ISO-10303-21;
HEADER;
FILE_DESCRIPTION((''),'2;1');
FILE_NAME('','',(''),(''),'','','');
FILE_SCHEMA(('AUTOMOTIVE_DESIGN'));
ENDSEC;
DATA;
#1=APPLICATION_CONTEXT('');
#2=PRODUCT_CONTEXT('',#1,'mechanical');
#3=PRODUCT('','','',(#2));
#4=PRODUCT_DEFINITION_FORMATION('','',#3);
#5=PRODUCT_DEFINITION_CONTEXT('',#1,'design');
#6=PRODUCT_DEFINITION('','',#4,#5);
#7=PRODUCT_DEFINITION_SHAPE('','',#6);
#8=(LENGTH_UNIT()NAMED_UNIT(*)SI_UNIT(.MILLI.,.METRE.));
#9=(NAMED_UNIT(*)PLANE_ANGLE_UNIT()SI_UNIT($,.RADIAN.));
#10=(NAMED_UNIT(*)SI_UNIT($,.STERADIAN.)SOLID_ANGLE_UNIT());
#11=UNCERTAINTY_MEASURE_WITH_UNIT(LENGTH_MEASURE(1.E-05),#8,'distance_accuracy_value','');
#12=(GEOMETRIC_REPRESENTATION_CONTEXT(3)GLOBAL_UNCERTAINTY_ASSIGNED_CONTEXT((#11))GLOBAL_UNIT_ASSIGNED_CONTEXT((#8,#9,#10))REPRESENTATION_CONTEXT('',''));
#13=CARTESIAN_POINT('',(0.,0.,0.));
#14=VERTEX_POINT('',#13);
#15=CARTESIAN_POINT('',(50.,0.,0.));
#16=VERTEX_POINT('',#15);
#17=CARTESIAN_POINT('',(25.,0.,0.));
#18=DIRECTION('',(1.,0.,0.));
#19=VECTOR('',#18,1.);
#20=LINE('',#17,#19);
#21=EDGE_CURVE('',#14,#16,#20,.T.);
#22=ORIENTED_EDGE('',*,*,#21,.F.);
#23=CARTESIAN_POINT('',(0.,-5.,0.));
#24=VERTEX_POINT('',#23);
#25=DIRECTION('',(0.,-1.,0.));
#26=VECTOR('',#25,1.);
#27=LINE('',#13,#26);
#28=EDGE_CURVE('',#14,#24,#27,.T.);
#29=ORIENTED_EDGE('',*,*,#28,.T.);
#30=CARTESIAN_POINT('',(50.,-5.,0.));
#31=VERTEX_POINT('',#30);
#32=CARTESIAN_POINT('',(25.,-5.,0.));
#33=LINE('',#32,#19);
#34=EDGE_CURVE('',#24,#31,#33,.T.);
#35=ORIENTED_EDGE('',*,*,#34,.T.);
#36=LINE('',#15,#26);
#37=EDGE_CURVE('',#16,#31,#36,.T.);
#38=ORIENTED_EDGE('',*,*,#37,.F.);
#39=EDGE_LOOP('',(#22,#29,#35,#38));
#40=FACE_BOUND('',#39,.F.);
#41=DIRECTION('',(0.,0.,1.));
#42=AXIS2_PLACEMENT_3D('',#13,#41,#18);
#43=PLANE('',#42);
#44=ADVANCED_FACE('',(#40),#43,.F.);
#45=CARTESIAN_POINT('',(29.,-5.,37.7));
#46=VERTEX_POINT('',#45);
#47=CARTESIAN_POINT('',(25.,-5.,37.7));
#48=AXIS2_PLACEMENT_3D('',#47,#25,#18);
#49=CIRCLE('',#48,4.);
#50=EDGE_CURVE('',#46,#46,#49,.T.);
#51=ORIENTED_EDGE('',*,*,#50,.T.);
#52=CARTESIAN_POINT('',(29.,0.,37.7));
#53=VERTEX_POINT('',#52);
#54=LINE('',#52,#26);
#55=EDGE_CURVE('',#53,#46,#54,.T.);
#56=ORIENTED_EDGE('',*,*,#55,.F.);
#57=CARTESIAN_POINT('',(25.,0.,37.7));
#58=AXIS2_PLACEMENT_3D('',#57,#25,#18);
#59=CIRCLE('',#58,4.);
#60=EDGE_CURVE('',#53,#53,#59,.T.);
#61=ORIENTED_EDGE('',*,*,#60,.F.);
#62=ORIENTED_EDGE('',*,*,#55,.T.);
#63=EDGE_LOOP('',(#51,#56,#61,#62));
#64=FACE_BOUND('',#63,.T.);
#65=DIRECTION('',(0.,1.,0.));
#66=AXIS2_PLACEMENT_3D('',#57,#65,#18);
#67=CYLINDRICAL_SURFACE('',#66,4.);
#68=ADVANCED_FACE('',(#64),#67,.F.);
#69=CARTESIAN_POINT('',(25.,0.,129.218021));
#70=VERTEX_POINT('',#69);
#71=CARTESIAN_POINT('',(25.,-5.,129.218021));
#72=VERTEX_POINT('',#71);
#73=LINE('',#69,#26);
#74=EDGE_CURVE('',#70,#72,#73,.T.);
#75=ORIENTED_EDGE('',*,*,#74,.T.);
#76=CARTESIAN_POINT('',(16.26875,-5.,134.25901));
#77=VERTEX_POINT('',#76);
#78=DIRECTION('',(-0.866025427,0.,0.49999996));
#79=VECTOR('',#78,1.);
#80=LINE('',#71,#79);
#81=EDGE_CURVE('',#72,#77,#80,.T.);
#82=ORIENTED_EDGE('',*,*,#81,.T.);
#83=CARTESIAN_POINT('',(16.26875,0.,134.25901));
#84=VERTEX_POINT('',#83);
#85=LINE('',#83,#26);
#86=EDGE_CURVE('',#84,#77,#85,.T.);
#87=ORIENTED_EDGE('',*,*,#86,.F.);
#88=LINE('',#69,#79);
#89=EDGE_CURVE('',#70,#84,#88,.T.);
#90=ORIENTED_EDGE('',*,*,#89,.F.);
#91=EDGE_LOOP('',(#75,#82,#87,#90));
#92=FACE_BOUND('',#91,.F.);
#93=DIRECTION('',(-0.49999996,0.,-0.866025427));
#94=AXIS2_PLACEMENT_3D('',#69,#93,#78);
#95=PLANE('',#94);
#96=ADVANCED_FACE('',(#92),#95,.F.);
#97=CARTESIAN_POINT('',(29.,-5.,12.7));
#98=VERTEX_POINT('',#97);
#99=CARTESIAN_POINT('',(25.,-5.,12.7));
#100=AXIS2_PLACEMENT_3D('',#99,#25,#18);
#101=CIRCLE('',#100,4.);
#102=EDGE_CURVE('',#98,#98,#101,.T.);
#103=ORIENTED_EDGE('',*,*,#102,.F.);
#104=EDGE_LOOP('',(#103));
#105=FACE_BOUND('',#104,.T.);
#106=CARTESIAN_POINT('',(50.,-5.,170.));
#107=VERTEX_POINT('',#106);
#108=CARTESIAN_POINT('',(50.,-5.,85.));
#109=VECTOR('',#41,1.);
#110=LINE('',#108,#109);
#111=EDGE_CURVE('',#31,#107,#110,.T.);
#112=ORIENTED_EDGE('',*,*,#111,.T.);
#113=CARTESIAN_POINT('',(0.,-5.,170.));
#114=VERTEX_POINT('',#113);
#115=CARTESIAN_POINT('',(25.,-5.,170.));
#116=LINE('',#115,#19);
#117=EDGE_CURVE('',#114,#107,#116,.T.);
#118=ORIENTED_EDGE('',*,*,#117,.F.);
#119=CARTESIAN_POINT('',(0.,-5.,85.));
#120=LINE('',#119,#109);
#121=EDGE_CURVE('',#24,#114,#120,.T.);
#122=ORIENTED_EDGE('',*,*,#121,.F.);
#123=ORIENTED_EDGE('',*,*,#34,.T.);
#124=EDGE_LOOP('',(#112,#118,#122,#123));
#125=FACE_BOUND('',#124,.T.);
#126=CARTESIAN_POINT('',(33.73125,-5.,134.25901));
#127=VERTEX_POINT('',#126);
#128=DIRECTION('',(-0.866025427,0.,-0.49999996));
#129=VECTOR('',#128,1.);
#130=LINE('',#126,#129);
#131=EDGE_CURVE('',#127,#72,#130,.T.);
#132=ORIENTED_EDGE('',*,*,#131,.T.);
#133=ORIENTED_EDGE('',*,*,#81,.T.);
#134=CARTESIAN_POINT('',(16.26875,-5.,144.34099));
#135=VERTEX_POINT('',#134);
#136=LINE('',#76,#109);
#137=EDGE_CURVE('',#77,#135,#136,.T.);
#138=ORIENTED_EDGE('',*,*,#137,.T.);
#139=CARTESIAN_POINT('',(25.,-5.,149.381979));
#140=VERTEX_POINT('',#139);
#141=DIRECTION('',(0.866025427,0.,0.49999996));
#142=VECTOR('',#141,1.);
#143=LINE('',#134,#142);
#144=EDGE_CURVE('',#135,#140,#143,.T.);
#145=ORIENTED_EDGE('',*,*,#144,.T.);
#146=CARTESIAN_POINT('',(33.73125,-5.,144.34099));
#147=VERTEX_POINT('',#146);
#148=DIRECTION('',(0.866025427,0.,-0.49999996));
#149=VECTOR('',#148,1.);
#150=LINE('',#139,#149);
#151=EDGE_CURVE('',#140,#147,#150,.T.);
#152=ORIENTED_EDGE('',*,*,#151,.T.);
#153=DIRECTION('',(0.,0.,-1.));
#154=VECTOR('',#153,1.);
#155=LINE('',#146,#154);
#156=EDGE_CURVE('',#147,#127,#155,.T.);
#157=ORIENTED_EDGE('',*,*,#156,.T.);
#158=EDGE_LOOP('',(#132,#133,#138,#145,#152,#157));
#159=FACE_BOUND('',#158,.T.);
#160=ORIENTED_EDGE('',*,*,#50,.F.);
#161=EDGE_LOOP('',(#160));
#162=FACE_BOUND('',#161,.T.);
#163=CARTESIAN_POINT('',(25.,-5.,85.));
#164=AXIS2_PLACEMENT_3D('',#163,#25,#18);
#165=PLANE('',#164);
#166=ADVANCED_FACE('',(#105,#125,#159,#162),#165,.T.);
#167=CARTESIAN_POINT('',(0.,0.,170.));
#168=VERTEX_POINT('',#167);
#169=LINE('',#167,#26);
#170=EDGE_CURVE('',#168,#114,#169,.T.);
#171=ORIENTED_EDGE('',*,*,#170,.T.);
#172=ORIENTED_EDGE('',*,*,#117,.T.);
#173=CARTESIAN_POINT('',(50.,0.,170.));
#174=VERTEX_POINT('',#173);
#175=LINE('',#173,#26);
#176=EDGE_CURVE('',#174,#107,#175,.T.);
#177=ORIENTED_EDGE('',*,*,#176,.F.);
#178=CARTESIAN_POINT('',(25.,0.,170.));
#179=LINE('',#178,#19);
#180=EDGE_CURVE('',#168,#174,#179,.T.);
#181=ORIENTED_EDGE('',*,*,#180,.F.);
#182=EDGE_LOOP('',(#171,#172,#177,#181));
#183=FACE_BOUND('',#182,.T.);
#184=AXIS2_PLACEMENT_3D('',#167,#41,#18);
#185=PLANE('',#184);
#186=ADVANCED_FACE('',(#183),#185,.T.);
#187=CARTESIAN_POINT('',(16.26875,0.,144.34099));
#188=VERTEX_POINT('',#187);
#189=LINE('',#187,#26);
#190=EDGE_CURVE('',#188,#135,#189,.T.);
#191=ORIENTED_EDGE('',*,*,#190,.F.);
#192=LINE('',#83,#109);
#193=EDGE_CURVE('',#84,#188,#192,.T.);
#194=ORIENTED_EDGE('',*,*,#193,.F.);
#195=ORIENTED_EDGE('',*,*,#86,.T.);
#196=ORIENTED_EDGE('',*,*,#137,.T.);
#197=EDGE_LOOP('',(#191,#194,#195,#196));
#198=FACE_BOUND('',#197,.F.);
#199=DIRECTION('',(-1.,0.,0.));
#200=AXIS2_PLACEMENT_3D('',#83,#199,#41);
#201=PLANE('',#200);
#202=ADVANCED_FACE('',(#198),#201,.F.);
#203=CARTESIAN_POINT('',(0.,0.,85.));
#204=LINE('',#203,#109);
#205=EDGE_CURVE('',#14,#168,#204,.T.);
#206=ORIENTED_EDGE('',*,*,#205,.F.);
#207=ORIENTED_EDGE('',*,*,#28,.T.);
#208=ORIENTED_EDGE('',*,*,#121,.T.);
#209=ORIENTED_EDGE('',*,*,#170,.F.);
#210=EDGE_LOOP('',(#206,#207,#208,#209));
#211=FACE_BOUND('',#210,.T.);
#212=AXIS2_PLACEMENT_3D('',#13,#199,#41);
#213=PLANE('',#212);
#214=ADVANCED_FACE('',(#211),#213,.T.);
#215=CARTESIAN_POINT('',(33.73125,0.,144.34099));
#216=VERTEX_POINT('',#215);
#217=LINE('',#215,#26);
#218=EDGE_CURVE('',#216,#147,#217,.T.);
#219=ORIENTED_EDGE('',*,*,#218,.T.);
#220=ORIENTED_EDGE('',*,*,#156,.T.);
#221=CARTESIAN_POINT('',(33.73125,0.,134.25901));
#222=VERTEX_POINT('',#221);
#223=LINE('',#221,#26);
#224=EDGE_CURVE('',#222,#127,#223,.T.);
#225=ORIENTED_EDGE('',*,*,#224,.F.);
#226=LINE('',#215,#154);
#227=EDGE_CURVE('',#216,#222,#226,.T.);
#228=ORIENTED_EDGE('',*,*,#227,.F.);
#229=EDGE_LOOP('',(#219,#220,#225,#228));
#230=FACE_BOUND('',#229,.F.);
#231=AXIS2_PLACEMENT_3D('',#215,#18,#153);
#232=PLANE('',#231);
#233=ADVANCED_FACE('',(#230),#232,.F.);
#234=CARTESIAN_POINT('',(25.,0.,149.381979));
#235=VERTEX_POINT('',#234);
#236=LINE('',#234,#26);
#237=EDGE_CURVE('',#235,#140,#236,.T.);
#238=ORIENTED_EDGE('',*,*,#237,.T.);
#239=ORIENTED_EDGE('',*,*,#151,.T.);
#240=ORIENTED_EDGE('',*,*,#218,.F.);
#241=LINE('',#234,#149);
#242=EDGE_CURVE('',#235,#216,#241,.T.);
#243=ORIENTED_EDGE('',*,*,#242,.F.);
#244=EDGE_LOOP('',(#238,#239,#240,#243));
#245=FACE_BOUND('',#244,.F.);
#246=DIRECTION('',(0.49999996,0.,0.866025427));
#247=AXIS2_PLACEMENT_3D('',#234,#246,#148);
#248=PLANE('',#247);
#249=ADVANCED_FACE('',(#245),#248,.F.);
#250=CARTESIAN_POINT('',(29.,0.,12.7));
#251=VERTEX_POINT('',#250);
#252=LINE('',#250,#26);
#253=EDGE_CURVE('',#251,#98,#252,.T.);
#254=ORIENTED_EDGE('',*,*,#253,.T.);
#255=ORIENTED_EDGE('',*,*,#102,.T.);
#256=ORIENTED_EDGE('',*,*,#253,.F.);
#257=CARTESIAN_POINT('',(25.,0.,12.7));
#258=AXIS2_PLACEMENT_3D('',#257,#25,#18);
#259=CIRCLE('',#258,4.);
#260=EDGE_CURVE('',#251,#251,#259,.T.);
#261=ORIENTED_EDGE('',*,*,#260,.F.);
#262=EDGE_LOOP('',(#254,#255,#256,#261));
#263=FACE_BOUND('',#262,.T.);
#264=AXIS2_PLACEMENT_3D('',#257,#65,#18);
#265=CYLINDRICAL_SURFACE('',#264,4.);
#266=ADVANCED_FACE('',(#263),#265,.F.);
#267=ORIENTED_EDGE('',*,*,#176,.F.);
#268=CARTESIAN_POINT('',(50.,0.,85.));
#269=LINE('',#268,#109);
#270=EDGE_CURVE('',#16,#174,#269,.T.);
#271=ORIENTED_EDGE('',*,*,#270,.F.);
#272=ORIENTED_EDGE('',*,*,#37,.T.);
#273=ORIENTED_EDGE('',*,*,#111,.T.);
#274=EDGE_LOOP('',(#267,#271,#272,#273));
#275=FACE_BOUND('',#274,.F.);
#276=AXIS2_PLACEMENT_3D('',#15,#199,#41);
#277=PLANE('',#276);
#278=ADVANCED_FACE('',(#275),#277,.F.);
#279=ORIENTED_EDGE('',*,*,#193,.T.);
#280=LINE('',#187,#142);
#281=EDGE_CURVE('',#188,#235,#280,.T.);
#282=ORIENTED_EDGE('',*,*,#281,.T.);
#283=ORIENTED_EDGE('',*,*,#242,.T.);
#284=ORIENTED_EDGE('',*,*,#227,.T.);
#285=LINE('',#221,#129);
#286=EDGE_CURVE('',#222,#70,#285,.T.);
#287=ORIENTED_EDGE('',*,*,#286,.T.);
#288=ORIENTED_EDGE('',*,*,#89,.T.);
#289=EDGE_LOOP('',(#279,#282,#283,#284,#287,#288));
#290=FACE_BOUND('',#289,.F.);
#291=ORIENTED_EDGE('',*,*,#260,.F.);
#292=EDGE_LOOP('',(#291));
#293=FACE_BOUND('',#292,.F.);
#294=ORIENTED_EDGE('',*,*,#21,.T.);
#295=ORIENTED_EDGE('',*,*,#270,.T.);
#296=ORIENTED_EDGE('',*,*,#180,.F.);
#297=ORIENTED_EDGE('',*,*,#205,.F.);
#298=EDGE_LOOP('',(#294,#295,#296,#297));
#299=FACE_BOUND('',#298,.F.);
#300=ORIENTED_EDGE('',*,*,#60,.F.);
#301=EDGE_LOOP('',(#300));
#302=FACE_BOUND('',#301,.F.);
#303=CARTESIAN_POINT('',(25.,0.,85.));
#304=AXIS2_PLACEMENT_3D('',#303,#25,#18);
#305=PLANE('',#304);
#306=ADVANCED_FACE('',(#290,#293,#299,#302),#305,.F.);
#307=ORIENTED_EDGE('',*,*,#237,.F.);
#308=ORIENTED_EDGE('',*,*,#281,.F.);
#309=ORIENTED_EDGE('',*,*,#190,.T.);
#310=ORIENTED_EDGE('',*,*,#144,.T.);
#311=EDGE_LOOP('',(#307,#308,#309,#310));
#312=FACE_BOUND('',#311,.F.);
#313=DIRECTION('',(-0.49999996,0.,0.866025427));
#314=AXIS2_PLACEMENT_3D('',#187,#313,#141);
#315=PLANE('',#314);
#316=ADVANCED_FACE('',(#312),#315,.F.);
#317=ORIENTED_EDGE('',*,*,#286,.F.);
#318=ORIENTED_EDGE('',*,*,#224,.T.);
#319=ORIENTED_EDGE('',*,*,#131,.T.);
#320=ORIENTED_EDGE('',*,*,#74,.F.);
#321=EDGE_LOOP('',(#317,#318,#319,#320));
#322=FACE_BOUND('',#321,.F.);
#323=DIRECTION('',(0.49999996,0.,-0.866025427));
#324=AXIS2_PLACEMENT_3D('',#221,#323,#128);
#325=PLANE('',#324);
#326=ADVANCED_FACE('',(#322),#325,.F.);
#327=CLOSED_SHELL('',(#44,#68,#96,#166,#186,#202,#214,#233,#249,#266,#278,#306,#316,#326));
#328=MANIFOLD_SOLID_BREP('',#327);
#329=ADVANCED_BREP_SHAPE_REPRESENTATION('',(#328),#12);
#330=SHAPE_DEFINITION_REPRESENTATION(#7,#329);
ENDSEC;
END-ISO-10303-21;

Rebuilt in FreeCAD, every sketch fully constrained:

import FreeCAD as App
import Part
import Sketcher
from FreeCAD import Vector
Q = App.Units.Quantity

doc = App.newDocument("Part")
body = doc.addObject("PartDesign::Body", "Body")

sketch1 = doc.addObject("Sketcher::SketchObject", "Sketch")
body.addObject(sketch1)
sketch1.AttachmentSupport = (doc.XZ_Plane, [""])
sketch1.MapMode = "FlatFace"
sketch1.addGeometry(Part.LineSegment(Vector(0, 170, 0), Vector(0, 0, 0)), False)
sketch1.addGeometry(Part.LineSegment(Vector(0, 0, 0), Vector(50, 0, 0)), False)
sketch1.addGeometry(Part.LineSegment(Vector(50, 0, 0), Vector(50, 170, 0)), False)
sketch1.addGeometry(Part.LineSegment(Vector(50, 170, 0), Vector(0, 170, 0)), False)
sketch1.addGeometry(Part.Circle(Vector(25, 12.7, 0), Vector(0, 0, 1), 4), False)
sketch1.addGeometry(Part.Circle(Vector(25, 37.7, 0), Vector(0, 0, 1), 4), False)
sketch1.addGeometry(Part.LineSegment(Vector(16.3, 144.3, 0), Vector(25, 149.4, 0)), False)
sketch1.addGeometry(Part.LineSegment(Vector(25, 149.4, 0), Vector(33.7, 144.3, 0)), False)
sketch1.addGeometry(Part.LineSegment(Vector(33.7, 144.3, 0), Vector(33.7, 134.3, 0)), False)
sketch1.addGeometry(Part.LineSegment(Vector(33.7, 134.3, 0), Vector(25, 129.2, 0)), False)
sketch1.addGeometry(Part.LineSegment(Vector(25, 129.2, 0), Vector(16.3, 134.3, 0)), False)
sketch1.addGeometry(Part.LineSegment(Vector(16.3, 134.3, 0), Vector(16.3, 144.3, 0)), False)
sketch1.addConstraint(Sketcher.Constraint("Coincident", 0, 2, 1, 1))
sketch1.addConstraint(Sketcher.Constraint("Coincident", 1, 2, 2, 1))
sketch1.addConstraint(Sketcher.Constraint("Coincident", 2, 2, 3, 1))
sketch1.addConstraint(Sketcher.Constraint("Coincident", 3, 2, 0, 1))
sketch1.addConstraint(Sketcher.Constraint("Coincident", 6, 2, 7, 1))
sketch1.addConstraint(Sketcher.Constraint("Coincident", 7, 2, 8, 1))
sketch1.addConstraint(Sketcher.Constraint("Coincident", 8, 2, 9, 1))
sketch1.addConstraint(Sketcher.Constraint("Coincident", 9, 2, 10, 1))
sketch1.addConstraint(Sketcher.Constraint("Coincident", 10, 2, 11, 1))
sketch1.addConstraint(Sketcher.Constraint("Coincident", 11, 2, 6, 1))
sketch1.addConstraint(Sketcher.Constraint("Vertical", 0))
sketch1.addConstraint(Sketcher.Constraint("Horizontal", 1))
sketch1.addConstraint(Sketcher.Constraint("Vertical", 2))
sketch1.addConstraint(Sketcher.Constraint("Horizontal", 3))
sketch1.addConstraint(Sketcher.Constraint("Vertical", 8))
sketch1.addConstraint(Sketcher.Constraint("Vertical", 11))
sketch1.addConstraint(Sketcher.Constraint("Coincident", 0, 2, -1, 1))
sketch1.addConstraint(Sketcher.Constraint("Equal", 4, 5))
sketch1.addConstraint(Sketcher.Constraint("Parallel", 6, 9))
sketch1.addConstraint(Sketcher.Constraint("Parallel", 7, 10))
sketch1.addConstraint(Sketcher.Constraint("Horizontal", 8, 2, 10, 2))
sketch1.addConstraint(Sketcher.Constraint("Horizontal", 7, 2, 11, 2))
sketch1.addConstraint(Sketcher.Constraint("Vertical", 4, 3, 5, 3))
sketch1.addConstraint(Sketcher.Constraint("Vertical", 5, 3, 6, 2))
sketch1.addConstraint(Sketcher.Constraint("Vertical", 6, 2, 9, 2))
sketch1.addConstraint(Sketcher.Constraint("Diameter", 4, Q("8 mm")))
sketch1.addConstraint(Sketcher.Constraint("DistanceX", 1, 1, 1, 2, Q("50 mm")))
sketch1.addConstraint(Sketcher.Constraint("DistanceY", 0, 2, 0, 1, Q("170 mm")))
sketch1.addConstraint(Sketcher.Constraint("Angle", 6, Q("29.999997 deg")))
sketch1.addConstraint(Sketcher.Constraint("DistanceX", -1, 1, 4, 3, Q("25 mm")))
sketch1.addConstraint(Sketcher.Constraint("DistanceY", 4, 3, 5, 3, Q("25 mm")))
sketch1.addConstraint(Sketcher.Constraint("DistanceY", -1, 1, 4, 3, Q("12.7 mm")))
sketch1.addConstraint(Sketcher.Constraint("DistanceY", 8, 2, 8, 1, Q("10.08198 mm")))
sketch1.addConstraint(Sketcher.Constraint("DistanceX", 10, 2, 8, 2, Q("17.4625 mm")))
sketch1.addConstraint(Sketcher.Constraint("DistanceY", -1, 1, 6, 2, Q("149.381979 mm")))
pad1 = doc.addObject("PartDesign::Pad", "Pad")
body.addObject(pad1)
pad1.Profile = sketch1
pad1.Length = 5

doc.recompute()
